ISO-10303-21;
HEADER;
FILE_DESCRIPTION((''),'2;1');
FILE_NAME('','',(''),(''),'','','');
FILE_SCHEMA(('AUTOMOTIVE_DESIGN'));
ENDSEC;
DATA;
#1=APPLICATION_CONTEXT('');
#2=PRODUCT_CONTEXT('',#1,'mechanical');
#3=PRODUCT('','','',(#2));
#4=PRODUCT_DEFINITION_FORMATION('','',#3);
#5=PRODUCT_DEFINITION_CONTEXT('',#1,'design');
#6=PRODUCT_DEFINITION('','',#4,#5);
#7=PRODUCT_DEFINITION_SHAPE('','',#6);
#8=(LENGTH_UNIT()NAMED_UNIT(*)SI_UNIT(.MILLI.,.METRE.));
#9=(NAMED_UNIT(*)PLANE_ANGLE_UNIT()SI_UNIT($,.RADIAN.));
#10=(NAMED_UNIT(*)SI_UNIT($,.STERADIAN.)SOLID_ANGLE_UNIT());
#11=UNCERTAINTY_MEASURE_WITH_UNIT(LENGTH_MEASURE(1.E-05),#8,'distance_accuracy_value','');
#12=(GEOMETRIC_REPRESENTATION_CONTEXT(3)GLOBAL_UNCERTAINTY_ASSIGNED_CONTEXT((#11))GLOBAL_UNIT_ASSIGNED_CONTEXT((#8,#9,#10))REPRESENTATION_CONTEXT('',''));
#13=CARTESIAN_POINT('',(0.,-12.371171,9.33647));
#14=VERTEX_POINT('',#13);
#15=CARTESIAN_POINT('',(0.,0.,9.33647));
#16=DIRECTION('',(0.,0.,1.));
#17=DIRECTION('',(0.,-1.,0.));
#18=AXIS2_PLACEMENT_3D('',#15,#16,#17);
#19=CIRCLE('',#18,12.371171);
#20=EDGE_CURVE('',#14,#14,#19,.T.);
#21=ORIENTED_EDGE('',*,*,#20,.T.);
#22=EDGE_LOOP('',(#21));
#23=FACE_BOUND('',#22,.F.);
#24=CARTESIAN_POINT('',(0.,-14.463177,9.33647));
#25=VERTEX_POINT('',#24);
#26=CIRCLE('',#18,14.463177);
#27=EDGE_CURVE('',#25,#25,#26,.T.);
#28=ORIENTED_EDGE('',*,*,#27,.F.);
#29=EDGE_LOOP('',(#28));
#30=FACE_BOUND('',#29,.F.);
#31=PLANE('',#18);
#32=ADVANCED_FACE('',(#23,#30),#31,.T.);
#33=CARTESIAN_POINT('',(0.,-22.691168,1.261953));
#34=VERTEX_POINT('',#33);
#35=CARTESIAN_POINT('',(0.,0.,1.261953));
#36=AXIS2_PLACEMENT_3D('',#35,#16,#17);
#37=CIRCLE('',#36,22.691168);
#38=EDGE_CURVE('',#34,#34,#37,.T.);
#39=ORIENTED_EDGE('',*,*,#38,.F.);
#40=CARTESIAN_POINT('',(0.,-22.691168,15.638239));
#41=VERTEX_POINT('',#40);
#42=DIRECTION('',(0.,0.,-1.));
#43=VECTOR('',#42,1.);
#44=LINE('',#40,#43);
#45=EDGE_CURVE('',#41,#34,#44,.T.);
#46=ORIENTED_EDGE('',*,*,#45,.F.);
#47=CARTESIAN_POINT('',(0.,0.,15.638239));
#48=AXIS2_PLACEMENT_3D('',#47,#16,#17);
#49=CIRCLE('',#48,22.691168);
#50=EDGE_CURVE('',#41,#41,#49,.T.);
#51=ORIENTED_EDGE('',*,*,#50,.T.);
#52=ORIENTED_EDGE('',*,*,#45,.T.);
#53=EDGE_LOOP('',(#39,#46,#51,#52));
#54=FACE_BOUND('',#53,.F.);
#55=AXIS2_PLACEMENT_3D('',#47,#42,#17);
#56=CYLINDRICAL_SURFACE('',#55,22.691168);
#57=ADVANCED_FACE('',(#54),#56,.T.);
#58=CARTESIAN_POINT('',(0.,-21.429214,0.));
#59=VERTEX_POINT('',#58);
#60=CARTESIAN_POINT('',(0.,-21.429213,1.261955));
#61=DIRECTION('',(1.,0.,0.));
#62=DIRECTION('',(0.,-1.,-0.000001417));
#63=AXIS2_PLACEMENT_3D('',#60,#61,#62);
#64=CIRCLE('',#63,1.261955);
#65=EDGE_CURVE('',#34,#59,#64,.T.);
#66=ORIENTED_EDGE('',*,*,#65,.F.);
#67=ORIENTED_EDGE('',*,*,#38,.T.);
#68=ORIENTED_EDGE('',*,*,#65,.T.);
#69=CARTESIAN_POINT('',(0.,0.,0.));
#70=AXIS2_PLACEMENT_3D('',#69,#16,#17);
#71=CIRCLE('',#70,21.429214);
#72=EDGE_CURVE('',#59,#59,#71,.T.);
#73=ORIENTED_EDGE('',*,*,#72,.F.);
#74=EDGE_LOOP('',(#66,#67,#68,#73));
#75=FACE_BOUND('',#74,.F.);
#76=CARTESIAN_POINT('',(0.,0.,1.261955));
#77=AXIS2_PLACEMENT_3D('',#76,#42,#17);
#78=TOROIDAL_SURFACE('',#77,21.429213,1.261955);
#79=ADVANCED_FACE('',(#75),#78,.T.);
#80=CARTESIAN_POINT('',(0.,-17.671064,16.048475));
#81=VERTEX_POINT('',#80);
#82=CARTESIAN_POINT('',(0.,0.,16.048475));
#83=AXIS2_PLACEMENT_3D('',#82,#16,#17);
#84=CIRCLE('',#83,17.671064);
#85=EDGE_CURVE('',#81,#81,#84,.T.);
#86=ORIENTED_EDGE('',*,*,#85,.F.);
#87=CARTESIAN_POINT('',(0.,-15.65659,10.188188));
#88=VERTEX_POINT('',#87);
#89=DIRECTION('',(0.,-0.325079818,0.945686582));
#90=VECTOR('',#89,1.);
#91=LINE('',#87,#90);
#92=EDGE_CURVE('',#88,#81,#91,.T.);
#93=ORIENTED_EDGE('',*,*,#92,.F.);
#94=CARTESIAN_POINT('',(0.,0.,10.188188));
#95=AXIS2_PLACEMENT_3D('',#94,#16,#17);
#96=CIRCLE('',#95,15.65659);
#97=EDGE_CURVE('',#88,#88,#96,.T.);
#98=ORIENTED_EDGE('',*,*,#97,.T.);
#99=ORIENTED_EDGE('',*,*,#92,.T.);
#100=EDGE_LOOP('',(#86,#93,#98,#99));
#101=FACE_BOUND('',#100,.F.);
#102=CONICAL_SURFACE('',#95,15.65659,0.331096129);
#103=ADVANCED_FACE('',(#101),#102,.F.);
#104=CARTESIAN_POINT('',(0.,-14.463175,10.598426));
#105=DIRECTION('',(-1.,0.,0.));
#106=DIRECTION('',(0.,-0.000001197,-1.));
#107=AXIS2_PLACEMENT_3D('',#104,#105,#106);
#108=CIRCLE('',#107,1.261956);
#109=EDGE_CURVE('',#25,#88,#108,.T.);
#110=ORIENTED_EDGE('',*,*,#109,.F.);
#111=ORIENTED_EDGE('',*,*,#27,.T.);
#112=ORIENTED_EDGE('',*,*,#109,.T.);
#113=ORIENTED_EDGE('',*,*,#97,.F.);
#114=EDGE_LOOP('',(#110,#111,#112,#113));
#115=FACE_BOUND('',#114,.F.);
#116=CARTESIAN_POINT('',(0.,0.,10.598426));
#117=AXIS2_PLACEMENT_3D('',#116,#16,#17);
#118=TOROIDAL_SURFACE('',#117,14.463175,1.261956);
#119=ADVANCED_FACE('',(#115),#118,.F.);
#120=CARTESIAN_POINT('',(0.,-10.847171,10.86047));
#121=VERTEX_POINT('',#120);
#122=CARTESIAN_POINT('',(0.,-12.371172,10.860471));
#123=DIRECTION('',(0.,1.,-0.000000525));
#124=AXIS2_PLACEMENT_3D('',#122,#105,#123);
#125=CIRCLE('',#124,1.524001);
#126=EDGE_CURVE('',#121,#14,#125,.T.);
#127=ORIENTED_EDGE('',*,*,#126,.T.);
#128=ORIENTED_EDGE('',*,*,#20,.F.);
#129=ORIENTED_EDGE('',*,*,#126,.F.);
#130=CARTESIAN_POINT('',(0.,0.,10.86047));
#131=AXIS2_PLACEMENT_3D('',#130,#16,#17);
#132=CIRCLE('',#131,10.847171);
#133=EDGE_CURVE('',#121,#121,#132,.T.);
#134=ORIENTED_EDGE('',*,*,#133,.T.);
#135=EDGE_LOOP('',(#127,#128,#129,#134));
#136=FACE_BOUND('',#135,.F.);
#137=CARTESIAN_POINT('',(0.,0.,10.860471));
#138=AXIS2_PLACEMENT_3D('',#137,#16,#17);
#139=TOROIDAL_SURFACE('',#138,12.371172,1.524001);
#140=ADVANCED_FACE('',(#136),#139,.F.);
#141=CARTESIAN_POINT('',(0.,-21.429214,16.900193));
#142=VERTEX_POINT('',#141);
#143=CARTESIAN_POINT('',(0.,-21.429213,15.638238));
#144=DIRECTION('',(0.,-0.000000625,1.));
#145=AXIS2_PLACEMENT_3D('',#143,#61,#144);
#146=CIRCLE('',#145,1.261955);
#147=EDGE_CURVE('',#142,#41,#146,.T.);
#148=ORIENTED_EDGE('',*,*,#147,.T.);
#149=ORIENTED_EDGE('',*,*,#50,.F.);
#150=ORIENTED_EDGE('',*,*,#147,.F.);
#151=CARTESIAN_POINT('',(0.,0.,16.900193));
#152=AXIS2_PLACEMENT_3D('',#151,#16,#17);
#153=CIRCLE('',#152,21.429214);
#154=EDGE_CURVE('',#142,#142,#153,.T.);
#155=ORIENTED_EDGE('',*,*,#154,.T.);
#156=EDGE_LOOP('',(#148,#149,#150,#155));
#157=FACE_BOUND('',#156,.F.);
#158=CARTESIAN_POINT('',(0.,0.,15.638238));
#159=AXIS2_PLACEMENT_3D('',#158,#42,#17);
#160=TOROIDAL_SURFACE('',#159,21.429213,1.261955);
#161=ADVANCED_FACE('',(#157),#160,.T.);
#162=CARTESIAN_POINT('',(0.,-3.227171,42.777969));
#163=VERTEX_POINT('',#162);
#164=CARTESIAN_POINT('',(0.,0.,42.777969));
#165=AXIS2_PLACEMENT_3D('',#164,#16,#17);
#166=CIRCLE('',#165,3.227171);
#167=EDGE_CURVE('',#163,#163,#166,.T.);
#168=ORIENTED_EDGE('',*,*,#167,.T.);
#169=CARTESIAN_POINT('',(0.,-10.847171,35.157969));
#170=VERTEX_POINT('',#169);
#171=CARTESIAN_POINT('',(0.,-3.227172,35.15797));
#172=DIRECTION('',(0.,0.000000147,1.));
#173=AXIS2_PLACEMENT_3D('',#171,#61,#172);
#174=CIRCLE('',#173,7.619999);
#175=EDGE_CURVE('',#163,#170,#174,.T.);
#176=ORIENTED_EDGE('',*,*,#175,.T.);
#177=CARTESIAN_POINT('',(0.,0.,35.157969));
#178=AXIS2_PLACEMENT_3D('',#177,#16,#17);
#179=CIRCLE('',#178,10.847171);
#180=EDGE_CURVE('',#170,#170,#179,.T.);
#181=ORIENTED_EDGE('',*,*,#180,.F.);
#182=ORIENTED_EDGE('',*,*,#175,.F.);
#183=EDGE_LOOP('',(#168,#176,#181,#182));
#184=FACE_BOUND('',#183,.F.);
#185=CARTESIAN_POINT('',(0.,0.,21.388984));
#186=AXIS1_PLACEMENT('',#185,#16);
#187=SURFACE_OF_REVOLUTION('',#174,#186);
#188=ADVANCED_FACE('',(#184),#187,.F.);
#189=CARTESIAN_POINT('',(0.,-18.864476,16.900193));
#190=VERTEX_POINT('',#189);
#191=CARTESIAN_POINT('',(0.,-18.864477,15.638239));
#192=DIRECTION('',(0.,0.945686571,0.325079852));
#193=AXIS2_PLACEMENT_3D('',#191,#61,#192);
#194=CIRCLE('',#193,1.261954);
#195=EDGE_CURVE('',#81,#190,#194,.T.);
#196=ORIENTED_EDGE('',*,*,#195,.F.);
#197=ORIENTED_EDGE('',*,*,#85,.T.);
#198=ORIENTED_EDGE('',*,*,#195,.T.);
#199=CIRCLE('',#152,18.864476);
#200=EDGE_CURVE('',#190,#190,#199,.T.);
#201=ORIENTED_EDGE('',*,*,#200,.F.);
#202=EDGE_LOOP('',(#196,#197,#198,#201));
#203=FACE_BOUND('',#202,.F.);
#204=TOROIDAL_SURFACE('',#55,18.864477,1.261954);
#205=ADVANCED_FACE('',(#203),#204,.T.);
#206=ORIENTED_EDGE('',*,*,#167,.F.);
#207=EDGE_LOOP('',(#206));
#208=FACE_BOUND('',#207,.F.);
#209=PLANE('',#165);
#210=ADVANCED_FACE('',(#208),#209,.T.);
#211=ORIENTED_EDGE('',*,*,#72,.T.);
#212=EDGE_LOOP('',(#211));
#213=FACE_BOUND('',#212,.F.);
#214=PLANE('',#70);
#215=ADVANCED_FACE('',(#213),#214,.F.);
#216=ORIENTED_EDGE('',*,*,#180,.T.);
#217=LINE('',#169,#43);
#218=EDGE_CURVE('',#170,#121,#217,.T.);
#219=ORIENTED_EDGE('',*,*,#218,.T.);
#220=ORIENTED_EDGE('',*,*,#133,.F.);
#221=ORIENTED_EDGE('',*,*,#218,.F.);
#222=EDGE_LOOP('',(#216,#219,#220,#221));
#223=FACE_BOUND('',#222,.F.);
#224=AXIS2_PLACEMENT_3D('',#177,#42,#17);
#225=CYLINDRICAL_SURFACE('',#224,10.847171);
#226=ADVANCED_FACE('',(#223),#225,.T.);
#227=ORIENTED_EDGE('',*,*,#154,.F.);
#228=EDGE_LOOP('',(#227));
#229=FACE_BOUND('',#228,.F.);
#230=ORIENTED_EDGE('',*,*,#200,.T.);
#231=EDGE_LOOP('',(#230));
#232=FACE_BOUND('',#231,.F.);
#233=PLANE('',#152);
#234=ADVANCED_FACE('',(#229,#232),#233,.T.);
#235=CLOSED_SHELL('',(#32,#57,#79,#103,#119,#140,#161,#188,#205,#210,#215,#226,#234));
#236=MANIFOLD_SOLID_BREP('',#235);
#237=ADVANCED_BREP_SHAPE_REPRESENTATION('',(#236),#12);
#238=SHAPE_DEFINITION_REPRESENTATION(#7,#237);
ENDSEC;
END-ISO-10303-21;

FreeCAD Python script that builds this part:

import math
import FreeCAD as App
import Part
import Sketcher
from FreeCAD import Vector
Q = App.Units.Quantity

doc = App.newDocument("Part")
params = doc.addObject("Spreadsheet::Sheet", "Params")
for row, (alias, value) in enumerate([
    ("sketch1_radius", "0.3 in"),
    ("sketch1_radius2", "0.06 in"),
    ("revolution_angle", "360 deg"),
], start=1):
    params.set(f"A{row}", alias)
    params.set(f"B{row}", "=" + value)
    params.setAlias(f"B{row}", alias)

body = doc.addObject("PartDesign::Body", "Body")

# Sketch on YZ plane
sketch1 = body.newObject("Sketcher::SketchObject", "Sketch")
sketch1.AttachmentSupport = (doc.getObject("YZ_Plane"), [""])
sketch1.MapMode = "FlatFace"
sketch1.addGeometry([
    Part.LineSegment(Vector(-21.4, 0, 0), Vector(0, 0, 0)),  # 0
    Part.LineSegment(Vector(0, 0, 0), Vector(0, 42.8, 0)),  # 1
    Part.LineSegment(Vector(0, 42.8, 0), Vector(-3.2, 42.8, 0)),  # 2
    Part.ArcOfCircle(Part.Circle(Vector(-3.2, 35.2, 0), Vector(0, 0, 1), 7.6), math.radians(90), math.radians(180)),  # 3
    Part.LineSegment(Vector(-10.8, 35.2, 0), Vector(-10.8, 10.9, 0)),  # 4
    Part.ArcOfCircle(Part.Circle(Vector(-12.4, 10.9, 0), Vector(0, 0, 1), 1.5), math.radians(-90), math.radians(0)),  # 5
    Part.LineSegment(Vector(-12.4, 9.3, 0), Vector(-14.5, 9.3, 0)),  # 6
    Part.ArcOfCircle(Part.Circle(Vector(-14.5, 10.6, 0), Vector(0, 0, 1), 1.3), math.radians(-161), math.radians(-90)),  # 7
    Part.LineSegment(Vector(-15.7, 10.2, 0), Vector(-17.7, 16, 0)),  # 8
    Part.ArcOfCircle(Part.Circle(Vector(-18.9, 15.6, 0), Vector(0, 0, 1), 1.3), math.radians(19), math.radians(90)),  # 9
    Part.LineSegment(Vector(-18.9, 16.9, 0), Vector(-21.4, 16.9, 0)),  # 10
    Part.ArcOfCircle(Part.Circle(Vector(-21.4, 15.6, 0), Vector(0, 0, 1), 1.3), math.radians(90), math.radians(180)),  # 11
    Part.LineSegment(Vector(-22.7, 15.6, 0), Vector(-22.7, 1.3, 0)),  # 12
    Part.ArcOfCircle(Part.Circle(Vector(-21.4, 1.3, 0), Vector(0, 0, 1), 1.3), math.radians(-180), math.radians(-90)),  # 13
], False)
sketch1.addConstraint([
    Sketcher.Constraint("Coincident", 0, 2, 1, 1),
    Sketcher.Constraint("Coincident", 1, 2, 2, 1),
    Sketcher.Constraint("Tangent", 2, 2, 3, 1),
    Sketcher.Constraint("Tangent", 3, 2, 4, 1),
    Sketcher.Constraint("Tangent", 4, 2, 5, 2),
    Sketcher.Constraint("Tangent", 5, 1, 6, 1),
    Sketcher.Constraint("Tangent", 6, 2, 7, 2),
    Sketcher.Constraint("Tangent", 7, 1, 8, 1),
    Sketcher.Constraint("Tangent", 8, 2, 9, 1),
    Sketcher.Constraint("Tangent", 9, 2, 10, 1),
    Sketcher.Constraint("Tangent", 10, 2, 11, 1),
    Sketcher.Constraint("Tangent", 11, 2, 12, 1),
    Sketcher.Constraint("Tangent", 12, 2, 13, 1),
    Sketcher.Constraint("Tangent", 13, 2, 0, 1),
    Sketcher.Constraint("Horizontal", 0),
    Sketcher.Constraint("Vertical", 1),
    Sketcher.Constraint("Horizontal", 2),
    Sketcher.Constraint("Vertical", 4),
    Sketcher.Constraint("Horizontal", 6),
    Sketcher.Constraint("Horizontal", 10),
    Sketcher.Constraint("Vertical", 12),
    Sketcher.Constraint("Coincident", 0, 2, -1, 1),
    Sketcher.Constraint("Equal", 9, 11),
    Sketcher.Constraint("Equal", 11, 13),
    Sketcher.Constraint("Radius", 3, Q("0.3 in")),
    Sketcher.Constraint("Radius", 5, Q("0.06 in")),
    Sketcher.Constraint("DistanceY", 4, 2, 4, 1, 24.297499),
    Sketcher.Constraint("Radius", 7, 1.261956),
    Sketcher.Constraint("Radius", 9, 1.261954),
    Sketcher.Constraint("DistanceX", 2, 2, 2, 1, 3.227171),
    Sketcher.Constraint("DistanceX", 10, 2, 10, 1, 2.564738),
    Sketcher.Constraint("DistanceY", 1, 1, 1, 2, 42.777969),
    Sketcher.Constraint("DistanceX", 9, 3, 7, 3, 4.401301),
    Sketcher.Constraint("Distance", 8, 6.19686),
    Sketcher.Constraint("DistanceX", 0, 1, 0, 2, 21.429214),
])
sketch1.setExpression("Constraints[24]", "Params.sketch1_radius")
sketch1.setExpression("Constraints[25]", "Params.sketch1_radius2")
revolution = body.newObject("PartDesign::Revolution", "Revolution")
revolution.Profile = sketch1
revolution.ReferenceAxis = (sketch1, ["V_Axis"])
revolution.setExpression("Angle", "Params.revolution_angle")

doc.recompute()
